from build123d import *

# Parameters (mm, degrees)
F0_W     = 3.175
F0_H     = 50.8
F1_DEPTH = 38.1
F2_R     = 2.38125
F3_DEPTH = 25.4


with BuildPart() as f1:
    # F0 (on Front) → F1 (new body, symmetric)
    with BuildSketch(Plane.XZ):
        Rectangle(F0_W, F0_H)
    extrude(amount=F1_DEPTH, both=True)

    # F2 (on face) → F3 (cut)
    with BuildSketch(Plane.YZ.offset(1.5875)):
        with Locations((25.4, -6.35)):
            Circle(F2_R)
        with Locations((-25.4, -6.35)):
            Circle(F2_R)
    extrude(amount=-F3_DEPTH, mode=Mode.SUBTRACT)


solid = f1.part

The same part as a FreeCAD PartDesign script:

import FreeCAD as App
import Part
import Sketcher

V = App.Vector
Q = App.Units.Quantity

doc = App.newDocument("Part")
params = doc.addObject("Spreadsheet::Sheet", "Params")
for row, (alias, value) in enumerate([
    ("sketch1_height", "2 in"),
    ("sketch1_width", "0.125 in"),
    ("pad1_length", "3 in"),
    ("sketch2_diameter", "0.1875 in"),
    ("pocket1_length", "1 in"),
], start=1):
    params.set(f"A{row}", alias)
    params.set(f"B{row}", "=" + value)
    params.setAlias(f"B{row}", alias)

body = doc.addObject("PartDesign::Body", "Body")

# Sketch on XZ plane
sketch1 = body.newObject("Sketcher::SketchObject", "Sketch")
sketch1.AttachmentSupport = (doc.getObject("XZ_Plane"), [""])
sketch1.MapMode = "FlatFace"
sketch1.addGeometry([
    Part.LineSegment(V(-1.6, 25.4, 0), V(-1.6, -25.4, 0)),
    Part.LineSegment(V(-1.6, -25.4, 0), V(1.6, -25.4, 0)),
    Part.LineSegment(V(1.6, -25.4, 0), V(1.6, 25.4, 0)),
    Part.LineSegment(V(1.6, 25.4, 0), V(-1.6, 25.4, 0)),
], False)
sketch1.addConstraint([
    Sketcher.Constraint("Coincident", 0, 2, 1, 1),
    Sketcher.Constraint("Coincident", 1, 2, 2, 1),
    Sketcher.Constraint("Coincident", 2, 2, 3, 1),
    Sketcher.Constraint("Coincident", 3, 2, 0, 1),
    Sketcher.Constraint("Vertical", 0),
    Sketcher.Constraint("Horizontal", 1),
    Sketcher.Constraint("Vertical", 2),
    Sketcher.Constraint("Horizontal", 3),
    Sketcher.Constraint("Symmetric", 0, 2, 2, 2, -1, 1),
    Sketcher.Constraint("DistanceY", 0, 2, 0, 1, Q("2 in")),
    Sketcher.Constraint("DistanceX", 1, 1, 1, 2, Q("0.125 in")),
])
sketch1.setExpression("Constraints[9]", "Params.sketch1_height")
sketch1.setExpression("Constraints[10]", "Params.sketch1_width")
pad1 = body.newObject("PartDesign::Pad", "Pad")
pad1.Profile = sketch1
pad1.setExpression("Length", "Params.pad1_length")
pad1.Midplane = True

# Sketch on YZ plane
sketch2 = body.newObject("Sketcher::SketchObject", "Sketch001")
sketch2.AttachmentSupport = (doc.getObject("YZ_Plane"), [""])
sketch2.MapMode = "FlatFace"
sketch2.AttachmentOffset = App.Placement(V(0, 0, 0.0625 * 25.4), App.Rotation())
sketch2.addGeometry([
    Part.Circle(V(25.4, -6.3, 0), V(0, 0, 1), 2.4),
    Part.Circle(V(-25.4, -6.3, 0), V(0, 0, 1), 2.4),
], False)
sketch2.addConstraint([
    Sketcher.Constraint("Equal", 0, 1),
    Sketcher.Constraint("Symmetric", 0, 3, 1, 3, -2),
    Sketcher.Constraint("Diameter", 0, Q("0.1875 in")),
    Sketcher.Constraint("DistanceX", -1, 1, 0, 3, Q("1 in")),
    Sketcher.Constraint("DistanceY", 0, 3, -1, 1, Q("0.25 in")),
])
sketch2.setExpression("Constraints[2]", "Params.sketch2_diameter")
pocket1 = body.newObject("PartDesign::Pocket", "Pocket")
pocket1.Profile = sketch2
pocket1.setExpression("Length", "Params.pocket1_length")

doc.recompute()
